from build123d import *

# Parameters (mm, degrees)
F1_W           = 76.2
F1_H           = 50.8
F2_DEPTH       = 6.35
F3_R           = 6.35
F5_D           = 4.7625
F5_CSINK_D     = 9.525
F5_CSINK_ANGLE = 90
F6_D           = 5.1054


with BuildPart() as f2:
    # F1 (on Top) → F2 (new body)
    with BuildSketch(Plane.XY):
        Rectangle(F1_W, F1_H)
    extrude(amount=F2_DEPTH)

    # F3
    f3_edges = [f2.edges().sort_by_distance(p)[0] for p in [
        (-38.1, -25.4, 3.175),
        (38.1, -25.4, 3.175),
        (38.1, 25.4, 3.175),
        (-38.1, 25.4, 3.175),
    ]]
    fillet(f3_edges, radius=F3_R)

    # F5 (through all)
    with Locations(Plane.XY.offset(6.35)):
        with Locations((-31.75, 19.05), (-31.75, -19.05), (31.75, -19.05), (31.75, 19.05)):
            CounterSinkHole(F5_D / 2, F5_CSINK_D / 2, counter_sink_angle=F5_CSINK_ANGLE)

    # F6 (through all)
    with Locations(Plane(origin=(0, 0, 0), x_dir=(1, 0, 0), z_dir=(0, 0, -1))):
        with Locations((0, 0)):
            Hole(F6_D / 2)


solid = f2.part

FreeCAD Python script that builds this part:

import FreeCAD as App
import Part
import Sketcher
from FreeCAD import Vector
Q = App.Units.Quantity


def edges_at(feature, points):
    """Names of the edges that pass closest to the given points."""
    edges = feature.Shape.Edges
    near = lambda p: min(range(len(edges)), key=lambda i: edges[i].distToShape(Part.Vertex(*p))[0])
    return sorted({f"Edge{near(p) + 1}" for p in points})


def add_polygon(sketch, points):
    """Adds a closed chain of lines whose ends are joined by coincident constraints."""
    first, n = sketch.GeometryCount, len(points)
    for a, b in zip(points, points[1:] + points[:1]):
        sketch.addGeometry(Part.LineSegment(App.Vector(*a, 0), App.Vector(*b, 0)), False)
    for i in range(n):
        sketch.addConstraint(Sketcher.Constraint("Coincident", first + i, 2, first + (i + 1) % n, 1))

doc = App.newDocument("Part")
params = doc.addObject("Spreadsheet::Sheet", "Params")
for row, (alias, value) in enumerate([
    ("sketch1_width", "3 in"),
    ("sketch1_height", "2 in"),
    ("pad1_length", "0.25 in"),
    ("fillet_radius", "0.25 in"),
    ("sketch2_diameter", "0.1875 in"),
    ("hole_diameter", "0.1875 in"),
    ("hole_csink_diameter", "0.375 in"),
    ("sketch3_diameter", "0.201 in"),
    ("hole2_diameter", "0.201 in"),
], start=1):
    params.set(f"A{row}", alias)
    params.set(f"B{row}", "=" + value)
    params.setAlias(f"B{row}", alias)

body = doc.addObject("PartDesign::Body", "Body")

# Sketch on XY plane
sketch1 = body.newObject("Sketcher::SketchObject", "Sketch")
sketch1.AttachmentSupport = (doc.getObject("XY_Plane"), [""])
sketch1.MapMode = "FlatFace"
add_polygon(sketch1, [(-38.1, 25.4), (-38.1, -25.4), (38.1, -25.4), (38.1, 25.4)])  # lines 0-3
sketch1.addConstraint(Sketcher.Constraint("Vertical", 0))
sketch1.addConstraint(Sketcher.Constraint("Horizontal", 1))
sketch1.addConstraint(Sketcher.Constraint("Vertical", 2))
sketch1.addConstraint(Sketcher.Constraint("Horizontal", 3))
sketch1.addConstraint(Sketcher.Constraint("Symmetric", 0, 2, 2, 2, -1, 1))
sketch1.addConstraint(Sketcher.Constraint("DistanceX", 1, 1, 1, 2, Q("3 in")))
sketch1.addConstraint(Sketcher.Constraint("DistanceY", 0, 2, 0, 1, Q("2 in")))
sketch1.setExpression("Constraints[9]", "Params.sketch1_width")
sketch1.setExpression("Constraints[10]", "Params.sketch1_height")
pad1 = body.newObject("PartDesign::Pad", "Pad")
pad1.Profile = sketch1
pad1.setExpression("Length", "Params.pad1_length")
doc.recompute()

fillet = body.newObject("PartDesign::Fillet", "Fillet")
fillet.Base = (pad1, edges_at(pad1, [
    (-38.1, -25.4, 3.175),
    (38.1, -25.4, 3.175),
    (38.1, 25.4, 3.175),
    (-38.1, 25.4, 3.175),
]))
fillet.setExpression("Radius", "Params.fillet_radius")

# Sketch on XY plane
sketch2 = body.newObject("Sketcher::SketchObject", "Sketch001")
sketch2.AttachmentSupport = (doc.getObject("XY_Plane"), [""])
sketch2.MapMode = "FlatFace"
sketch2.AttachmentOffset = App.Placement(Vector(0, 0, 0.25 * 25.4), App.Rotation())
sketch2.addGeometry(Part.Circle(Vector(-31.75, 19.05, 0), Vector(0, 0, 1), 2.38125), False)
sketch2.addGeometry(Part.Circle(Vector(-31.75, -19.05, 0), Vector(0, 0, 1), 2.38125), False)
sketch2.addGeometry(Part.Circle(Vector(31.75, -19.05, 0), Vector(0, 0, 1), 2.38125), False)
sketch2.addGeometry(Part.Circle(Vector(31.75, 19.05, 0), Vector(0, 0, 1), 2.38125), False)
sketch2.addConstraint(Sketcher.Constraint("Equal", 0, 1))
sketch2.addConstraint(Sketcher.Constraint("Equal", 1, 2))
sketch2.addConstraint(Sketcher.Constraint("Equal", 2, 3))
sketch2.addConstraint(Sketcher.Constraint("Symmetric", 0, 3, 2, 3, -1, 1))
sketch2.addConstraint(Sketcher.Constraint("Symmetric", 1, 3, 3, 3, -1, 1))
sketch2.addConstraint(Sketcher.Constraint("Symmetric", 1, 3, 2, 3, -2))
sketch2.addConstraint(Sketcher.Constraint("Diameter", 0, Q("0.1875 in")))
sketch2.addConstraint(Sketcher.Constraint("DistanceY", 1, 3, 0, 3, Q("1.5 in")))
sketch2.addConstraint(Sketcher.Constraint("DistanceX", 1, 3, 2, 3, Q("2.5 in")))
sketch2.setExpression("Constraints[6]", "Params.sketch2_diameter")
doc.recompute()
hole = body.newObject("PartDesign::Hole", "Hole")
hole.Profile = sketch2
hole.ThreadType = "None"
hole.setExpression("Diameter", "Params.hole_diameter")
hole.DepthType = "ThroughAll"
hole.HoleCutType = "Countersink"
hole.setExpression("HoleCutDiameter", "Params.hole_csink_diameter")
hole.HoleCutCountersinkAngle = 90

# Sketch on XY plane
sketch3 = body.newObject("Sketcher::SketchObject", "Sketch002")
sketch3.AttachmentSupport = (doc.getObject("XY_Plane"), [""])
sketch3.MapMode = "FlatFace"
sketch3.addGeometry(Part.Circle(Vector(0, 0, 0), Vector(0, 0, 1), 2.5527), False)
sketch3.addConstraint(Sketcher.Constraint("Coincident", 0, 3, -1, 1))
sketch3.addConstraint(Sketcher.Constraint("Diameter", 0, Q("0.201 in")))
sketch3.setExpression("Constraints[1]", "Params.sketch3_diameter")
doc.recompute()
hole2 = body.newObject("PartDesign::Hole", "Hole001")
hole2.Profile = sketch3
hole2.ThreadType = "None"
hole2.setExpression("Diameter", "Params.hole2_diameter")
hole2.DepthType = "ThroughAll"
hole2.Reversed = True

doc.recompute()
